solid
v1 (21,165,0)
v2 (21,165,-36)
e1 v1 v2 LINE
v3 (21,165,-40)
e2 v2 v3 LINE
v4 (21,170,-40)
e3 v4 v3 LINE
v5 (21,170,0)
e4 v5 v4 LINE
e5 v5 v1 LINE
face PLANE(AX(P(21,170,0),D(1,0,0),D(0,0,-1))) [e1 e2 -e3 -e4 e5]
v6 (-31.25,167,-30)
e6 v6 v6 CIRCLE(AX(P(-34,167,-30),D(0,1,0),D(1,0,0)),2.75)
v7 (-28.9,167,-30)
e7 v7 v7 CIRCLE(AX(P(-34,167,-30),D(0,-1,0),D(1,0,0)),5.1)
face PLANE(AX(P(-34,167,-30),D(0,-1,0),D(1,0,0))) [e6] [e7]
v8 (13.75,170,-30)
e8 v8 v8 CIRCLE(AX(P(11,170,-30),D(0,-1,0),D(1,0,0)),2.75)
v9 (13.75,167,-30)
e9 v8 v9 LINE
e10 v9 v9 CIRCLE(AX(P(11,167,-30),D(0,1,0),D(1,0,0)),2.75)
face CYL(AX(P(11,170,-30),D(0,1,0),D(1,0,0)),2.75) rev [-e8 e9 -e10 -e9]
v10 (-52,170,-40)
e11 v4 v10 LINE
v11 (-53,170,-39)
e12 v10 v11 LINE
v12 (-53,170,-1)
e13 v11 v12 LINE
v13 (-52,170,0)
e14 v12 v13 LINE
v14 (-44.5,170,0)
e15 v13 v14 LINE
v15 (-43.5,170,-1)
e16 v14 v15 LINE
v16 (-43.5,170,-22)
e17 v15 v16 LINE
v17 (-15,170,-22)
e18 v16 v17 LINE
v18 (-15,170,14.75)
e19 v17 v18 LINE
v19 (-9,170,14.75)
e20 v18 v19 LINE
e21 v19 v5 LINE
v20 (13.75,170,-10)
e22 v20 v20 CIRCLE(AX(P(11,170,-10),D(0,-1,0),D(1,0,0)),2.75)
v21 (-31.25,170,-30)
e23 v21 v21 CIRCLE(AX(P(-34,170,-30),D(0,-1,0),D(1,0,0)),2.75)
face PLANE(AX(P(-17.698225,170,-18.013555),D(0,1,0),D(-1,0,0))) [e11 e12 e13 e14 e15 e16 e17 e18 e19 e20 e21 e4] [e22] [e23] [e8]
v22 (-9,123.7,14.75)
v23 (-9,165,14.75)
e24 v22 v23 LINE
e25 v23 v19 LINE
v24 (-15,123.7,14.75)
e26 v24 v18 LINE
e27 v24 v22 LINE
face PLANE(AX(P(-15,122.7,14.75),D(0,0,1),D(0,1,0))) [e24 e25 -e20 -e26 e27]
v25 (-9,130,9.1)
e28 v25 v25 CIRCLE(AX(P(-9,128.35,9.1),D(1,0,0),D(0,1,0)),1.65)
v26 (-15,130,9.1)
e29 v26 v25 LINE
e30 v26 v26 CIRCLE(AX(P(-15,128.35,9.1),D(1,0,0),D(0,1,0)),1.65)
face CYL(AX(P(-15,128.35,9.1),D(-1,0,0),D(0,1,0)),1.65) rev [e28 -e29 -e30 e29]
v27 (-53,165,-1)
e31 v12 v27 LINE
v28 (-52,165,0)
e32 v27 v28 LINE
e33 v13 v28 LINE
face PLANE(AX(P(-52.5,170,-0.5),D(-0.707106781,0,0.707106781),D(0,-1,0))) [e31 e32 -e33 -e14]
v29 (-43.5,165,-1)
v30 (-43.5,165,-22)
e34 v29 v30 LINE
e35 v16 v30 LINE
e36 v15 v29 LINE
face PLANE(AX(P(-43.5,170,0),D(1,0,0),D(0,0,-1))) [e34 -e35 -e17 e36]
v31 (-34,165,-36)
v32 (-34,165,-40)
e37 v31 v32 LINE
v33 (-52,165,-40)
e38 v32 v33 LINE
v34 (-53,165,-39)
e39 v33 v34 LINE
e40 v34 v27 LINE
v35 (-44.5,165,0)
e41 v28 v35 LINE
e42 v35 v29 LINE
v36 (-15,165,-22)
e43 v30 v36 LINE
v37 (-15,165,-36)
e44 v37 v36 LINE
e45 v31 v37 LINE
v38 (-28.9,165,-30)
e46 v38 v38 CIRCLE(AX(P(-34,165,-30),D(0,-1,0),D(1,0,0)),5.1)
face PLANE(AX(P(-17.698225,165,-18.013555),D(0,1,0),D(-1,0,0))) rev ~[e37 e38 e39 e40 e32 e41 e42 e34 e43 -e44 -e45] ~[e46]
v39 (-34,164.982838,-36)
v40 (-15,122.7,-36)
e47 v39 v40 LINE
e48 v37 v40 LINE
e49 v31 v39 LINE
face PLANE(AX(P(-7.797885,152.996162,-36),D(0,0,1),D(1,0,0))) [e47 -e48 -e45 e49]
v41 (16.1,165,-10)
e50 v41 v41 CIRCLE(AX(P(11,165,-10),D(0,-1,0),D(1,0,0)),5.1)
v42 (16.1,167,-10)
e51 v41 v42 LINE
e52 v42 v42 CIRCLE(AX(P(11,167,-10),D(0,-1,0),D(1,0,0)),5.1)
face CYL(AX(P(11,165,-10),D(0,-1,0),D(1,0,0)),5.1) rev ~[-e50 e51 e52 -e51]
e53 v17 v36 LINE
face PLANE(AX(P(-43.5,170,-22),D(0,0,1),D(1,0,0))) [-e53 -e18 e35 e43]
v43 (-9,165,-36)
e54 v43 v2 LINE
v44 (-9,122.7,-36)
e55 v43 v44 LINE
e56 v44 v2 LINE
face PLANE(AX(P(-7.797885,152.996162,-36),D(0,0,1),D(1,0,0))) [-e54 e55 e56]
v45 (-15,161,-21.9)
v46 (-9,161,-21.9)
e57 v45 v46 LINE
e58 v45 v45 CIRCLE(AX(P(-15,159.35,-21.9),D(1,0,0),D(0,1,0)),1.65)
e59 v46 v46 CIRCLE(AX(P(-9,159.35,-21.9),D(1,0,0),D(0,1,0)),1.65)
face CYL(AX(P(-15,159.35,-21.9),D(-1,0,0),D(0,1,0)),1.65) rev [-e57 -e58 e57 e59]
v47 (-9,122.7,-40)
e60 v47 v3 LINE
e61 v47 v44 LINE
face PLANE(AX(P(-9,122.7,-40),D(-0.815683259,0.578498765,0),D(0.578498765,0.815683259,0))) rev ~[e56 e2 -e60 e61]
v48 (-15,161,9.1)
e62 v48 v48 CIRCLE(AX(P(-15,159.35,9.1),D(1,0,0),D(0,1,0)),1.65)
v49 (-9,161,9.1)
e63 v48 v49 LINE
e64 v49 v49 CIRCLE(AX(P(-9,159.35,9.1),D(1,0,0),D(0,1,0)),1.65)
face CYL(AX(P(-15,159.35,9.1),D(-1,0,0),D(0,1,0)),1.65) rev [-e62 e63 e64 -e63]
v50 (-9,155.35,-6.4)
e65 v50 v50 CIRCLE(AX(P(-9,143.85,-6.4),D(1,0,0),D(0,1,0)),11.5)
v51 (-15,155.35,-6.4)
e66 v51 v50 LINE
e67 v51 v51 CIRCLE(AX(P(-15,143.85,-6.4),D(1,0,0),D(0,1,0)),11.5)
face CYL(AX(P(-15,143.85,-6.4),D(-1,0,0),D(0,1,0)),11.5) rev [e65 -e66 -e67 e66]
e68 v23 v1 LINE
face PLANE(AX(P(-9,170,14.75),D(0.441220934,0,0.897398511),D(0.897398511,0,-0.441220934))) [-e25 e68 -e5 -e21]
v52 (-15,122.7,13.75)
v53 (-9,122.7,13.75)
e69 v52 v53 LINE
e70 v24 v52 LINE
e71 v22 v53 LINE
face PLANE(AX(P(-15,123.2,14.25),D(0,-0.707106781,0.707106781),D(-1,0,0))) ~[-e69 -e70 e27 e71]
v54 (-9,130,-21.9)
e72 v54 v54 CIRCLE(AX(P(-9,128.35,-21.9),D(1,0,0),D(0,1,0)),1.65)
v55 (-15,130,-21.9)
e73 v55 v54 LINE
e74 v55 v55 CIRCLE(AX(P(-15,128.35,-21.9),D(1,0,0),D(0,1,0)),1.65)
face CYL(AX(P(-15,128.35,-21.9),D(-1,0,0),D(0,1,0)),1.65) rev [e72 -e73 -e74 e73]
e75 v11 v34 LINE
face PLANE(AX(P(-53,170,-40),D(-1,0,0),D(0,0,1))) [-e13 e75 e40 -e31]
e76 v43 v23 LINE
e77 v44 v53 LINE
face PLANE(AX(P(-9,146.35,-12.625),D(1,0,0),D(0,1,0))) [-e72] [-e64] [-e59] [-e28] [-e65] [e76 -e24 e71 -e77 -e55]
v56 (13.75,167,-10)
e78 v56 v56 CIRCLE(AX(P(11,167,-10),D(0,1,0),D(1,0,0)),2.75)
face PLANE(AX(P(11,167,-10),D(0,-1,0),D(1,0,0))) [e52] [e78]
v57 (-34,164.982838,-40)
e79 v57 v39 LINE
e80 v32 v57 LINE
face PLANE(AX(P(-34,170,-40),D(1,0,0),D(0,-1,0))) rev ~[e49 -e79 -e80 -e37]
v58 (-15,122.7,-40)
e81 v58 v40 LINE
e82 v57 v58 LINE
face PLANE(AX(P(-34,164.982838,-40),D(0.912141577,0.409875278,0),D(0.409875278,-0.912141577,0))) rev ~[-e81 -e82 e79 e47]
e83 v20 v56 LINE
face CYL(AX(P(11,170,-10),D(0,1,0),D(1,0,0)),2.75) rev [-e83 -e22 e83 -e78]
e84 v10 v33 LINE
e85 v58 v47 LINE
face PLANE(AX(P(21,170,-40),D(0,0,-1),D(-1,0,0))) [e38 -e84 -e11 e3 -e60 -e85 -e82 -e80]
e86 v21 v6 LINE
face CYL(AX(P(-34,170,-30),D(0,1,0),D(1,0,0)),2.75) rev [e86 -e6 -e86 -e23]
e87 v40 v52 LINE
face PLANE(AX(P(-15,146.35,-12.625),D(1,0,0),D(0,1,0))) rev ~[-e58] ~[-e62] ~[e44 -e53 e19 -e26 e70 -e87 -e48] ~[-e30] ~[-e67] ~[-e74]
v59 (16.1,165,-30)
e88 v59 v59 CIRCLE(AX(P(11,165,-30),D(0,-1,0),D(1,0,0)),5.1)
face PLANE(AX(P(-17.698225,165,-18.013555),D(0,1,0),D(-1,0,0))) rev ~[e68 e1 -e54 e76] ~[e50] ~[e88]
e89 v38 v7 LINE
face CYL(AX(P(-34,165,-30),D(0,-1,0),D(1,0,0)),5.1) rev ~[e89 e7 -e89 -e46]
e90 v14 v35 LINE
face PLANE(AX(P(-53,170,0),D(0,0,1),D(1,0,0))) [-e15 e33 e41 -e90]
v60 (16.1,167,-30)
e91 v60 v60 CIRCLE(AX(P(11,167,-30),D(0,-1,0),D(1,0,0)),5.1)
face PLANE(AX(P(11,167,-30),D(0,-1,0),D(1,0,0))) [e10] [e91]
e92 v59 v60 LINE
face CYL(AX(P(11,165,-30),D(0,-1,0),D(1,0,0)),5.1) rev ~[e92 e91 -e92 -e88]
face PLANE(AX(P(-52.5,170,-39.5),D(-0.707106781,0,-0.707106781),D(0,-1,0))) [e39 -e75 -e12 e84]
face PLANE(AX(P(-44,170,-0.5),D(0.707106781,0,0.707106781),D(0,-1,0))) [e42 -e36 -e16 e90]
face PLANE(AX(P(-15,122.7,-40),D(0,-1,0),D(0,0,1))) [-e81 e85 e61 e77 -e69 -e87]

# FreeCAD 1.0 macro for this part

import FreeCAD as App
import Part
import Sketcher

V = App.Vector
Q = App.Units.Quantity


def edges_at(feature, points):
    """Names of the edges that pass closest to the given points."""
    edges = feature.Shape.Edges
    near = lambda p: min(range(len(edges)), key=lambda i: edges[i].distToShape(Part.Vertex(*p))[0])
    return sorted({f"Edge{near(p) + 1}" for p in points})

doc = App.newDocument("Part")
body = doc.addObject("PartDesign::Body", "Body")

sketch1 = doc.addObject("Sketcher::SketchObject", "Sketch")
body.addObject(sketch1)
sketch1.AttachmentSupport = (doc.YZ_Plane, [""])
sketch1.MapMode = "FlatFace"
sketch1.addGeometry([
    Part.LineSegment(V(-47.3, 54.8, 0), V(-47.3, 0, 0)),
    Part.LineSegment(V(-47.3, 0, 0), V(0, 0, 0)),
    Part.LineSegment(V(0, 0, 0), V(0, 54.8, 0)),
    Part.LineSegment(V(0, 54.8, 0), V(-47.3, 54.8, 0)),
    Part.Circle(V(-41.6, 18.1, 0), V(0, 0, 1), 1.6),
    Part.Circle(V(-10.7, 18.1, 0), V(0, 0, 1), 1.6),
    Part.Circle(V(-41.6, 49.1, 0), V(0, 0, 1), 1.6),
    Part.Circle(V(-26.1, 33.6, 0), V(0, 0, 1), 11.5),
    Part.Circle(V(-10.7, 49.1, 0), V(0, 0, 1), 1.6),
], False)
sketch1.addConstraint([
    Sketcher.Constraint("Coincident", 0, 2, 1, 1),
    Sketcher.Constraint("Coincident", 1, 2, 2, 1),
    Sketcher.Constraint("Coincident", 2, 2, 3, 1),
    Sketcher.Constraint("Coincident", 3, 2, 0, 1),
    Sketcher.Constraint("Vertical", 0),
    Sketcher.Constraint("Horizontal", 1),
    Sketcher.Constraint("Vertical", 2),
    Sketcher.Constraint("Horizontal", 3),
    Sketcher.Constraint("Coincident", 1, 2, -1, 1),
    Sketcher.Constraint("Equal", 4, 5),
    Sketcher.Constraint("Equal", 5, 6),
    Sketcher.Constraint("Equal", 6, 8),
    Sketcher.Constraint("Horizontal", 4, 3, 5, 3),
    Sketcher.Constraint("Horizontal", 6, 3, 8, 3),
    Sketcher.Constraint("Vertical", 4, 3, 6, 3),
    Sketcher.Constraint("Vertical", 5, 3, 8, 3),
    Sketcher.Constraint("Diameter", 7, Q("23 mm")),
    Sketcher.Constraint("Diameter", 4, Q("3.3 mm")),
    Sketcher.Constraint("DistanceX", 1, 1, 1, 2, Q("47.3 mm")),
    Sketcher.Constraint("DistanceX", 4, 3, 5, 3, Q("31 mm")),
    Sketcher.Constraint("DistanceY", 4, 3, 6, 3, Q("31 mm")),
    Sketcher.Constraint("DistanceY", 0, 2, 0, 1, Q("54.75 mm")),
    Sketcher.Constraint("DistanceY", -1, 1, 4, 3, Q("18.1 mm")),
    Sketcher.Constraint("DistanceY", -1, 1, 7, 3, Q("33.6 mm")),
    Sketcher.Constraint("DistanceX", 4, 3, 7, 3, Q("15.5 mm")),
    Sketcher.Constraint("DistanceX", 4, 3, -1, 1, Q("41.65 mm")),
])
pad1 = doc.addObject("PartDesign::Pad", "Pad")
body.addObject(pad1)
pad1.Profile = sketch1
pad1.Length = 6

sketch2 = doc.addObject("Sketcher::SketchObject", "Sketch001")
body.addObject(sketch2)
sketch2.AttachmentSupport = (doc.XZ_Plane, [""])
sketch2.MapMode = "FlatFace"
sketch2.addGeometry([
    Part.LineSegment(V(-28.5, 40, 0), V(-38, 40, 0)),
    Part.LineSegment(V(-38, 40, 0), V(-38, 0, 0)),
    Part.LineSegment(V(-38, 0, 0), V(36, 0, 0)),
    Part.LineSegment(V(36, 0, 0), V(36, 40, 0)),
    Part.LineSegment(V(36, 40, 0), V(6, 54.8, 0)),
    Part.LineSegment(V(6, 54.8, 0), V(0, 54.8, 0)),
    Part.LineSegment(V(0, 54.8, 0), V(0, 18, 0)),
    Part.LineSegment(V(0, 18, 0), V(-28.5, 18, 0)),
    Part.LineSegment(V(-28.5, 18, 0), V(-28.5, 40, 0)),
    Part.Circle(V(26, 10, 0), V(0, 0, 1), 2.8),
    Part.Circle(V(-19, 10, 0), V(0, 0, 1), 2.8),
    Part.Circle(V(26, 30, 0), V(0, 0, 1), 2.8),
], False)
sketch2.addConstraint([
    Sketcher.Constraint("Coincident", 0, 2, 1, 1),
    Sketcher.Constraint("Coincident", 1, 2, 2, 1),
    Sketcher.Constraint("Coincident", 2, 2, 3, 1),
    Sketcher.Constraint("Coincident", 3, 2, 4, 1),
    Sketcher.Constraint("Coincident", 4, 2, 5, 1),
    Sketcher.Constraint("Coincident", 5, 2, 6, 1),
    Sketcher.Constraint("Coincident", 6, 2, 7, 1),
    Sketcher.Constraint("Coincident", 7, 2, 8, 1),
    Sketcher.Constraint("Coincident", 8, 2, 0, 1),
    Sketcher.Constraint("Horizontal", 0),
    Sketcher.Constraint("Vertical", 1),
    Sketcher.Constraint("Horizontal", 2),
    Sketcher.Constraint("Vertical", 3),
    Sketcher.Constraint("Horizontal", 5),
    Sketcher.Constraint("Vertical", 6),
    Sketcher.Constraint("Horizontal", 7),
    Sketcher.Constraint("Vertical", 8),
    Sketcher.Constraint("Equal", 9, 10),
    Sketcher.Constraint("Equal", 10, 11),
    Sketcher.Constraint("PointOnObject", 1, 2, -1),
    Sketcher.Constraint("PointOnObject", 5, 2, -2),
    Sketcher.Constraint("Horizontal", 9, 3, 10, 3),
    Sketcher.Constraint("Horizontal", 0, 2, 3, 2),
    Sketcher.Constraint("Vertical", 9, 3, 11, 3),
    Sketcher.Constraint("Diameter", 9, Q("5.5 mm")),
    Sketcher.Constraint("DistanceX", 2, 1, 2, 2, Q("74 mm")),
    Sketcher.Constraint("DistanceX", 5, 2, 5, 1, Q("6 mm")),
    Sketcher.Constraint("DistanceY", 1, 2, 1, 1, Q("40 mm")),
    Sketcher.Constraint("DistanceY", 8, 1, 8, 2, Q("22 mm")),
    Sketcher.Constraint("DistanceX", 0, 2, 0, 1, Q("9.5 mm")),
    Sketcher.Constraint("DistanceX", 7, 2, 7, 1, Q("28.5 mm")),
    Sketcher.Constraint("DistanceX", -1, 1, 9, 3, Q("26 mm")),
    Sketcher.Constraint("DistanceY", -1, 1, 9, 3, Q("10 mm")),
    Sketcher.Constraint("DistanceX", 10, 3, -1, 1, Q("19 mm")),
    Sketcher.Constraint("DistanceY", -1, 1, 11, 3, Q("30 mm")),
    Sketcher.Constraint("DistanceY", 6, 2, 6, 1, Q("36.75 mm")),
])
pad2 = doc.addObject("PartDesign::Pad", "Pad001")
body.addObject(pad2)
pad2.Profile = sketch2
pad2.Length = 5

sketch3 = doc.addObject("Sketcher::SketchObject", "Sketch002")
body.addObject(sketch3)
sketch3.AttachmentSupport = (doc.XY_Plane, [""])
sketch3.MapMode = "FlatFace"
sketch3.addGeometry([
    Part.LineSegment(V(-19, 0, 0), V(-19, -5, 0)),
    Part.LineSegment(V(-19, -5, 0), V(0, -47, 0)),
    Part.LineSegment(V(0, -47, 0), V(6, -47, 0)),
    Part.LineSegment(V(6, -47, 0), V(36, -5, 0)),
    Part.LineSegment(V(36, -5, 0), V(36, 0, 0)),
    Part.LineSegment(V(36, 0, 0), V(-19, 0, 0)),
], False)
sketch3.addConstraint([
    Sketcher.Constraint("Coincident", 0, 2, 1, 1),
    Sketcher.Constraint("Coincident", 1, 2, 2, 1),
    Sketcher.Constraint("Coincident", 2, 2, 3, 1),
    Sketcher.Constraint("Coincident", 3, 2, 4, 1),
    Sketcher.Constraint("Coincident", 4, 2, 5, 1),
    Sketcher.Constraint("Coincident", 5, 2, 0, 1),
    Sketcher.Constraint("Vertical", 0),
    Sketcher.Constraint("Horizontal", 2),
    Sketcher.Constraint("Vertical", 4),
    Sketcher.Constraint("Horizontal", 5),
    Sketcher.Constraint("PointOnObject", 1, 2, -2),
    Sketcher.Constraint("PointOnObject", 4, 2, -1),
    Sketcher.Constraint("DistanceX", 2, 1, 2, 2, Q("6 mm")),
    Sketcher.Constraint("DistanceX", 5, 2, 5, 1, Q("55 mm")),
    Sketcher.Constraint("DistanceY", 4, 1, 4, 2, Q("5 mm")),
    Sketcher.Constraint("DistanceX", 0, 2, -1, 1, Q("19 mm")),
    Sketcher.Constraint("DistanceY", 1, 2, -1, 1, Q("47.3 mm")),
    Sketcher.Constraint("DistanceY", 0, 2, 0, 1, Q("5.017162 mm")),
])
pad3 = doc.addObject("PartDesign::Pad", "Pad002")
body.addObject(pad3)
pad3.Profile = sketch3
pad3.Length = 4

sketch4 = doc.addObject("Sketcher::SketchObject", "Sketch003")
body.addObject(sketch4)
sketch4.AttachmentSupport = (doc.XZ_Plane, [""])
sketch4.MapMode = "FlatFace"
sketch4.AttachmentOffset = App.Placement(V(0, 0, 5), App.Rotation())
sketch4.addGeometry([
    Part.Circle(V(-19, 10, 0), V(0, 0, 1), 5),
    Part.Circle(V(26, 30, 0), V(0, 0, 1), 5),
    Part.Circle(V(26, 10, 0), V(0, 0, 1), 5),
], False)
sketch4.addConstraint([
    Sketcher.Constraint("Equal", 0, 1),
    Sketcher.Constraint("Equal", 1, 2),
    Sketcher.Constraint("Horizontal", 0, 3, 2, 3),
    Sketcher.Constraint("Vertical", 1, 3, 2, 3),
    Sketcher.Constraint("Diameter", 0, Q("10.2 mm")),
    Sketcher.Constraint("DistanceX", 0, 3, -1, 1, Q("19 mm")),
    Sketcher.Constraint("DistanceY", -1, 1, 0, 3, Q("10 mm")),
    Sketcher.Constraint("DistanceX", -1, 1, 1, 3, Q("26 mm")),
    Sketcher.Constraint("DistanceY", -1, 1, 1, 3, Q("30 mm")),
])
pocket1 = doc.addObject("PartDesign::Pocket", "Pocket")
body.addObject(pocket1)
pocket1.Profile = sketch4
pocket1.Length = 2
doc.recompute()

chamfer = doc.addObject("PartDesign::Chamfer", "Chamfer")
body.addObject(chamfer)
chamfer.Base = (pocket1, edges_at(pocket1, [
    (3, -47.3, 54.75),
    (-28.5, -2.5, 40),
    (-38, -2.5, 40),
    (-38, -2.5, 0),
]))
chamfer.Size = 1
body2 = doc.addObject("PartDesign::Body", "Body001")
doc.recompute()

body.Placement = App.Placement(V(-15, 170, -40), App.Rotation(V(0, 0, 1), 0))
boolean = doc.addObject("PartDesign::Boolean", "Boolean")
body2.addObject(boolean)
boolean.Type = "Fuse"
boolean.addObjects([body])

doc.recompute()
